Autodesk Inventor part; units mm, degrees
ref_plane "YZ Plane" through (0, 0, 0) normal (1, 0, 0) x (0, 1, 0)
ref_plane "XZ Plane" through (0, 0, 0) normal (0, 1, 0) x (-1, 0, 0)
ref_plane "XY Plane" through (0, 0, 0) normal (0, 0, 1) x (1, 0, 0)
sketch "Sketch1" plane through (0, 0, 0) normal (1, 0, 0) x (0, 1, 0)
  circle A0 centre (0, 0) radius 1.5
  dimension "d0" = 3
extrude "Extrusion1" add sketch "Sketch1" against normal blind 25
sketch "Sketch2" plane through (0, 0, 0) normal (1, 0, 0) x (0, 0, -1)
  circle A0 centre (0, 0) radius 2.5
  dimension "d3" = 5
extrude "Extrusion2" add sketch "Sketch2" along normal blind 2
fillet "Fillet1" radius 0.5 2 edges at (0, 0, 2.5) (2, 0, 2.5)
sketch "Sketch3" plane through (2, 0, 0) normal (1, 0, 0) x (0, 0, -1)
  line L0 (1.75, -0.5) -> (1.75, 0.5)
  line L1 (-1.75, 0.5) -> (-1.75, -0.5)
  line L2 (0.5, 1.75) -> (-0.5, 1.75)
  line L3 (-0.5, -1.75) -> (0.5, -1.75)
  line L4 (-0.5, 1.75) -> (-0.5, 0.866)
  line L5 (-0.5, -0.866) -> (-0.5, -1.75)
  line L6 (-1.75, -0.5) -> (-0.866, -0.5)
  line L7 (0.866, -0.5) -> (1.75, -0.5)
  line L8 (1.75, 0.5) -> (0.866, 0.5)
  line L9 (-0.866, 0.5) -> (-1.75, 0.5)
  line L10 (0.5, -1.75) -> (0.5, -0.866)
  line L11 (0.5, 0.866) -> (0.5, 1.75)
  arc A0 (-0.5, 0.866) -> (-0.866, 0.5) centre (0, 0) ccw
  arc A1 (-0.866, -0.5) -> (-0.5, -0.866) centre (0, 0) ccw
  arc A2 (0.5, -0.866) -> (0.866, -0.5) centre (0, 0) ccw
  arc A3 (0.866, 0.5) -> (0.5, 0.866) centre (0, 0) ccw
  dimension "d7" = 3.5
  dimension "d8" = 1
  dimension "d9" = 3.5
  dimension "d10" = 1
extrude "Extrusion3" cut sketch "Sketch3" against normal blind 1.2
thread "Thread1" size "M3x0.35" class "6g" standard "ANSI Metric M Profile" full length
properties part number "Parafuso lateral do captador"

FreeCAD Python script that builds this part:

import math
import FreeCAD as App
import Part
import Sketcher

V = App.Vector
Q = App.Units.Quantity


def edges_at(feature, points):
    """Names of the edges that pass closest to the given points."""
    edges = feature.Shape.Edges
    near = lambda p: min(range(len(edges)), key=lambda i: edges[i].distToShape(Part.Vertex(*p))[0])
    return sorted({f"Edge{near(p) + 1}" for p in points})

doc = App.newDocument("Part")
body = doc.addObject("PartDesign::Body", "Body")

# Sketch on YZ plane
sketch1 = body.newObject("Sketcher::SketchObject", "Sketch")
sketch1.AttachmentSupport = (doc.getObject("YZ_Plane"), [""])
sketch1.MapMode = "FlatFace"
sketch1.addGeometry(Part.Circle(V(0, 0, 0), V(0, 0, 1), 1.5), False)
sketch1.addConstraint(Sketcher.Constraint("Coincident", 0, 3, -1, 1))
sketch1.addConstraint(Sketcher.Constraint("Diameter", 0, Q("3 mm")))
pad1 = body.newObject("PartDesign::Pad", "Pad")
pad1.Profile = sketch1
pad1.Length = 25
pad1.Reversed = True

# Sketch on YZ plane
sketch2 = body.newObject("Sketcher::SketchObject", "Sketch001")
sketch2.AttachmentSupport = (doc.getObject("YZ_Plane"), [""])
sketch2.MapMode = "FlatFace"
sketch2.addGeometry(Part.Circle(V(0, 0, 0), V(0, 0, 1), 2.5), False)
sketch2.addConstraint(Sketcher.Constraint("Coincident", 0, 3, -1, 1))
sketch2.addConstraint(Sketcher.Constraint("Diameter", 0, Q("5 mm")))
pad2 = body.newObject("PartDesign::Pad", "Pad001")
pad2.Profile = sketch2
pad2.Length = 2
doc.recompute()

fillet = body.newObject("PartDesign::Fillet", "Fillet")
fillet.Base = (pad2, edges_at(pad2, [(0, 0, 2.5), (2, 0, 2.5)]))
fillet.Radius = 0.5

# Sketch on YZ plane
sketch3 = body.newObject("Sketcher::SketchObject", "Sketch002")
sketch3.AttachmentSupport = (doc.getObject("YZ_Plane"), [""])
sketch3.MapMode = "FlatFace"
sketch3.AttachmentOffset = App.Placement(V(0, 0, 2), App.Rotation())
sketch3.addGeometry(Part.LineSegment(V(-0.5, -0.9, 0), V(-0.5, -1.8, 0)), False)
sketch3.addGeometry(Part.LineSegment(V(-0.5, -1.8, 0), V(0.5, -1.8, 0)), False)
sketch3.addGeometry(Part.LineSegment(V(0.5, -1.8, 0), V(0.5, -0.9, 0)), False)
sketch3.addGeometry(Part.ArcOfCircle(Part.Circle(V(0, 0, 0), V(0, 0, 1), 1), math.radians(-60), math.radians(-30)), False)
sketch3.addGeometry(Part.LineSegment(V(0.9, -0.5, 0), V(1.8, -0.5, 0)), False)
sketch3.addGeometry(Part.LineSegment(V(1.8, -0.5, 0), V(1.8, 0.5, 0)), False)
sketch3.addGeometry(Part.LineSegment(V(1.8, 0.5, 0), V(0.9, 0.5, 0)), False)
sketch3.addGeometry(Part.ArcOfCircle(Part.Circle(V(0, 0, 0), V(0, 0, 1), 1), math.radians(30), math.radians(60)), False)
sketch3.addGeometry(Part.LineSegment(V(0.5, 0.9, 0), V(0.5, 1.8, 0)), False)
sketch3.addGeometry(Part.LineSegment(V(0.5, 1.8, 0), V(-0.5, 1.8, 0)), False)
sketch3.addGeometry(Part.LineSegment(V(-0.5, 1.8, 0), V(-0.5, 0.9, 0)), False)
sketch3.addGeometry(Part.ArcOfCircle(Part.Circle(V(0, 0, 0), V(0, 0, 1), 1), math.radians(120), math.radians(150)), False)
sketch3.addGeometry(Part.LineSegment(V(-0.9, 0.5, 0), V(-1.8, 0.5, 0)), False)
sketch3.addGeometry(Part.LineSegment(V(-1.8, 0.5, 0), V(-1.8, -0.5, 0)), False)
sketch3.addGeometry(Part.LineSegment(V(-1.8, -0.5, 0), V(-0.9, -0.5, 0)), False)
sketch3.addGeometry(Part.ArcOfCircle(Part.Circle(V(0, 0, 0), V(0, 0, 1), 1), math.radians(-150), math.radians(-120)), False)
sketch3.addConstraint(Sketcher.Constraint("Coincident", 0, 2, 1, 1))
sketch3.addConstraint(Sketcher.Constraint("Coincident", 1, 2, 2, 1))
sketch3.addConstraint(Sketcher.Constraint("Coincident", 2, 2, 3, 1))
sketch3.addConstraint(Sketcher.Constraint("Coincident", 3, 2, 4, 1))
sketch3.addConstraint(Sketcher.Constraint("Coincident", 4, 2, 5, 1))
sketch3.addConstraint(Sketcher.Constraint("Coincident", 5, 2, 6, 1))
sketch3.addConstraint(Sketcher.Constraint("Coincident", 6, 2, 7, 1))
sketch3.addConstraint(Sketcher.Constraint("Coincident", 7, 2, 8, 1))
sketch3.addConstraint(Sketcher.Constraint("Coincident", 8, 2, 9, 1))
sketch3.addConstraint(Sketcher.Constraint("Coincident", 9, 2, 10, 1))
sketch3.addConstraint(Sketcher.Constraint("Coincident", 10, 2, 11, 1))
sketch3.addConstraint(Sketcher.Constraint("Coincident", 11, 2, 12, 1))
sketch3.addConstraint(Sketcher.Constraint("Coincident", 12, 2, 13, 1))
sketch3.addConstraint(Sketcher.Constraint("Coincident", 13, 2, 14, 1))
sketch3.addConstraint(Sketcher.Constraint("Coincident", 14, 2, 15, 1))
sketch3.addConstraint(Sketcher.Constraint("Coincident", 15, 2, 0, 1))
sketch3.addConstraint(Sketcher.Constraint("Vertical", 0))
sketch3.addConstraint(Sketcher.Constraint("Horizontal", 1))
sketch3.addConstraint(Sketcher.Constraint("Vertical", 2))
sketch3.addConstraint(Sketcher.Constraint("Horizontal", 4))
sketch3.addConstraint(Sketcher.Constraint("Vertical", 5))
sketch3.addConstraint(Sketcher.Constraint("Horizontal", 6))
sketch3.addConstraint(Sketcher.Constraint("Vertical", 8))
sketch3.addConstraint(Sketcher.Constraint("Horizontal", 9))
sketch3.addConstraint(Sketcher.Constraint("Vertical", 10))
sketch3.addConstraint(Sketcher.Constraint("Horizontal", 12))
sketch3.addConstraint(Sketcher.Constraint("Vertical", 13))
sketch3.addConstraint(Sketcher.Constraint("Horizontal", 14))
sketch3.addConstraint(Sketcher.Constraint("Coincident", 3, 3, -1, 1))
sketch3.addConstraint(Sketcher.Constraint("Coincident", 7, 3, -1, 1))
sketch3.addConstraint(Sketcher.Constraint("Coincident", 11, 3, -1, 1))
sketch3.addConstraint(Sketcher.Constraint("Coincident", 15, 3, -1, 1))
sketch3.addConstraint(Sketcher.Constraint("Equal", 3, 7))
sketch3.addConstraint(Sketcher.Constraint("Equal", 7, 11))
sketch3.addConstraint(Sketcher.Constraint("Equal", 11, 15))
sketch3.addConstraint(Sketcher.Constraint("Symmetric", 0, 2, 8, 2, -1, 1))
sketch3.addConstraint(Sketcher.Constraint("Symmetric", 4, 2, 12, 2, -1, 1))
sketch3.addConstraint(Sketcher.Constraint("Horizontal", 7, 2, 10, 2))
sketch3.addConstraint(Sketcher.Constraint("Horizontal", 6, 2, 11, 2))
sketch3.addConstraint(Sketcher.Constraint("Horizontal", 4, 2, 13, 2))
sketch3.addConstraint(Sketcher.Constraint("Horizontal", 2, 2, 15, 2))
sketch3.addConstraint(Sketcher.Constraint("Equal", 14, 0))
sketch3.addConstraint(Sketcher.Constraint("Equal", 9, 5))
sketch3.addConstraint(Sketcher.Constraint("Radius", 3, Q("1 mm")))
sketch3.addConstraint(Sketcher.Constraint("DistanceX", 1, 1, 1, 2, Q("1 mm")))
sketch3.addConstraint(Sketcher.Constraint("DistanceX", 4, 1, 4, 2, Q("0.884 mm")))
pocket1 = body.newObject("PartDesign::Pocket", "Pocket")
pocket1.Profile = sketch3
pocket1.Length = 1.2

doc.recompute()
